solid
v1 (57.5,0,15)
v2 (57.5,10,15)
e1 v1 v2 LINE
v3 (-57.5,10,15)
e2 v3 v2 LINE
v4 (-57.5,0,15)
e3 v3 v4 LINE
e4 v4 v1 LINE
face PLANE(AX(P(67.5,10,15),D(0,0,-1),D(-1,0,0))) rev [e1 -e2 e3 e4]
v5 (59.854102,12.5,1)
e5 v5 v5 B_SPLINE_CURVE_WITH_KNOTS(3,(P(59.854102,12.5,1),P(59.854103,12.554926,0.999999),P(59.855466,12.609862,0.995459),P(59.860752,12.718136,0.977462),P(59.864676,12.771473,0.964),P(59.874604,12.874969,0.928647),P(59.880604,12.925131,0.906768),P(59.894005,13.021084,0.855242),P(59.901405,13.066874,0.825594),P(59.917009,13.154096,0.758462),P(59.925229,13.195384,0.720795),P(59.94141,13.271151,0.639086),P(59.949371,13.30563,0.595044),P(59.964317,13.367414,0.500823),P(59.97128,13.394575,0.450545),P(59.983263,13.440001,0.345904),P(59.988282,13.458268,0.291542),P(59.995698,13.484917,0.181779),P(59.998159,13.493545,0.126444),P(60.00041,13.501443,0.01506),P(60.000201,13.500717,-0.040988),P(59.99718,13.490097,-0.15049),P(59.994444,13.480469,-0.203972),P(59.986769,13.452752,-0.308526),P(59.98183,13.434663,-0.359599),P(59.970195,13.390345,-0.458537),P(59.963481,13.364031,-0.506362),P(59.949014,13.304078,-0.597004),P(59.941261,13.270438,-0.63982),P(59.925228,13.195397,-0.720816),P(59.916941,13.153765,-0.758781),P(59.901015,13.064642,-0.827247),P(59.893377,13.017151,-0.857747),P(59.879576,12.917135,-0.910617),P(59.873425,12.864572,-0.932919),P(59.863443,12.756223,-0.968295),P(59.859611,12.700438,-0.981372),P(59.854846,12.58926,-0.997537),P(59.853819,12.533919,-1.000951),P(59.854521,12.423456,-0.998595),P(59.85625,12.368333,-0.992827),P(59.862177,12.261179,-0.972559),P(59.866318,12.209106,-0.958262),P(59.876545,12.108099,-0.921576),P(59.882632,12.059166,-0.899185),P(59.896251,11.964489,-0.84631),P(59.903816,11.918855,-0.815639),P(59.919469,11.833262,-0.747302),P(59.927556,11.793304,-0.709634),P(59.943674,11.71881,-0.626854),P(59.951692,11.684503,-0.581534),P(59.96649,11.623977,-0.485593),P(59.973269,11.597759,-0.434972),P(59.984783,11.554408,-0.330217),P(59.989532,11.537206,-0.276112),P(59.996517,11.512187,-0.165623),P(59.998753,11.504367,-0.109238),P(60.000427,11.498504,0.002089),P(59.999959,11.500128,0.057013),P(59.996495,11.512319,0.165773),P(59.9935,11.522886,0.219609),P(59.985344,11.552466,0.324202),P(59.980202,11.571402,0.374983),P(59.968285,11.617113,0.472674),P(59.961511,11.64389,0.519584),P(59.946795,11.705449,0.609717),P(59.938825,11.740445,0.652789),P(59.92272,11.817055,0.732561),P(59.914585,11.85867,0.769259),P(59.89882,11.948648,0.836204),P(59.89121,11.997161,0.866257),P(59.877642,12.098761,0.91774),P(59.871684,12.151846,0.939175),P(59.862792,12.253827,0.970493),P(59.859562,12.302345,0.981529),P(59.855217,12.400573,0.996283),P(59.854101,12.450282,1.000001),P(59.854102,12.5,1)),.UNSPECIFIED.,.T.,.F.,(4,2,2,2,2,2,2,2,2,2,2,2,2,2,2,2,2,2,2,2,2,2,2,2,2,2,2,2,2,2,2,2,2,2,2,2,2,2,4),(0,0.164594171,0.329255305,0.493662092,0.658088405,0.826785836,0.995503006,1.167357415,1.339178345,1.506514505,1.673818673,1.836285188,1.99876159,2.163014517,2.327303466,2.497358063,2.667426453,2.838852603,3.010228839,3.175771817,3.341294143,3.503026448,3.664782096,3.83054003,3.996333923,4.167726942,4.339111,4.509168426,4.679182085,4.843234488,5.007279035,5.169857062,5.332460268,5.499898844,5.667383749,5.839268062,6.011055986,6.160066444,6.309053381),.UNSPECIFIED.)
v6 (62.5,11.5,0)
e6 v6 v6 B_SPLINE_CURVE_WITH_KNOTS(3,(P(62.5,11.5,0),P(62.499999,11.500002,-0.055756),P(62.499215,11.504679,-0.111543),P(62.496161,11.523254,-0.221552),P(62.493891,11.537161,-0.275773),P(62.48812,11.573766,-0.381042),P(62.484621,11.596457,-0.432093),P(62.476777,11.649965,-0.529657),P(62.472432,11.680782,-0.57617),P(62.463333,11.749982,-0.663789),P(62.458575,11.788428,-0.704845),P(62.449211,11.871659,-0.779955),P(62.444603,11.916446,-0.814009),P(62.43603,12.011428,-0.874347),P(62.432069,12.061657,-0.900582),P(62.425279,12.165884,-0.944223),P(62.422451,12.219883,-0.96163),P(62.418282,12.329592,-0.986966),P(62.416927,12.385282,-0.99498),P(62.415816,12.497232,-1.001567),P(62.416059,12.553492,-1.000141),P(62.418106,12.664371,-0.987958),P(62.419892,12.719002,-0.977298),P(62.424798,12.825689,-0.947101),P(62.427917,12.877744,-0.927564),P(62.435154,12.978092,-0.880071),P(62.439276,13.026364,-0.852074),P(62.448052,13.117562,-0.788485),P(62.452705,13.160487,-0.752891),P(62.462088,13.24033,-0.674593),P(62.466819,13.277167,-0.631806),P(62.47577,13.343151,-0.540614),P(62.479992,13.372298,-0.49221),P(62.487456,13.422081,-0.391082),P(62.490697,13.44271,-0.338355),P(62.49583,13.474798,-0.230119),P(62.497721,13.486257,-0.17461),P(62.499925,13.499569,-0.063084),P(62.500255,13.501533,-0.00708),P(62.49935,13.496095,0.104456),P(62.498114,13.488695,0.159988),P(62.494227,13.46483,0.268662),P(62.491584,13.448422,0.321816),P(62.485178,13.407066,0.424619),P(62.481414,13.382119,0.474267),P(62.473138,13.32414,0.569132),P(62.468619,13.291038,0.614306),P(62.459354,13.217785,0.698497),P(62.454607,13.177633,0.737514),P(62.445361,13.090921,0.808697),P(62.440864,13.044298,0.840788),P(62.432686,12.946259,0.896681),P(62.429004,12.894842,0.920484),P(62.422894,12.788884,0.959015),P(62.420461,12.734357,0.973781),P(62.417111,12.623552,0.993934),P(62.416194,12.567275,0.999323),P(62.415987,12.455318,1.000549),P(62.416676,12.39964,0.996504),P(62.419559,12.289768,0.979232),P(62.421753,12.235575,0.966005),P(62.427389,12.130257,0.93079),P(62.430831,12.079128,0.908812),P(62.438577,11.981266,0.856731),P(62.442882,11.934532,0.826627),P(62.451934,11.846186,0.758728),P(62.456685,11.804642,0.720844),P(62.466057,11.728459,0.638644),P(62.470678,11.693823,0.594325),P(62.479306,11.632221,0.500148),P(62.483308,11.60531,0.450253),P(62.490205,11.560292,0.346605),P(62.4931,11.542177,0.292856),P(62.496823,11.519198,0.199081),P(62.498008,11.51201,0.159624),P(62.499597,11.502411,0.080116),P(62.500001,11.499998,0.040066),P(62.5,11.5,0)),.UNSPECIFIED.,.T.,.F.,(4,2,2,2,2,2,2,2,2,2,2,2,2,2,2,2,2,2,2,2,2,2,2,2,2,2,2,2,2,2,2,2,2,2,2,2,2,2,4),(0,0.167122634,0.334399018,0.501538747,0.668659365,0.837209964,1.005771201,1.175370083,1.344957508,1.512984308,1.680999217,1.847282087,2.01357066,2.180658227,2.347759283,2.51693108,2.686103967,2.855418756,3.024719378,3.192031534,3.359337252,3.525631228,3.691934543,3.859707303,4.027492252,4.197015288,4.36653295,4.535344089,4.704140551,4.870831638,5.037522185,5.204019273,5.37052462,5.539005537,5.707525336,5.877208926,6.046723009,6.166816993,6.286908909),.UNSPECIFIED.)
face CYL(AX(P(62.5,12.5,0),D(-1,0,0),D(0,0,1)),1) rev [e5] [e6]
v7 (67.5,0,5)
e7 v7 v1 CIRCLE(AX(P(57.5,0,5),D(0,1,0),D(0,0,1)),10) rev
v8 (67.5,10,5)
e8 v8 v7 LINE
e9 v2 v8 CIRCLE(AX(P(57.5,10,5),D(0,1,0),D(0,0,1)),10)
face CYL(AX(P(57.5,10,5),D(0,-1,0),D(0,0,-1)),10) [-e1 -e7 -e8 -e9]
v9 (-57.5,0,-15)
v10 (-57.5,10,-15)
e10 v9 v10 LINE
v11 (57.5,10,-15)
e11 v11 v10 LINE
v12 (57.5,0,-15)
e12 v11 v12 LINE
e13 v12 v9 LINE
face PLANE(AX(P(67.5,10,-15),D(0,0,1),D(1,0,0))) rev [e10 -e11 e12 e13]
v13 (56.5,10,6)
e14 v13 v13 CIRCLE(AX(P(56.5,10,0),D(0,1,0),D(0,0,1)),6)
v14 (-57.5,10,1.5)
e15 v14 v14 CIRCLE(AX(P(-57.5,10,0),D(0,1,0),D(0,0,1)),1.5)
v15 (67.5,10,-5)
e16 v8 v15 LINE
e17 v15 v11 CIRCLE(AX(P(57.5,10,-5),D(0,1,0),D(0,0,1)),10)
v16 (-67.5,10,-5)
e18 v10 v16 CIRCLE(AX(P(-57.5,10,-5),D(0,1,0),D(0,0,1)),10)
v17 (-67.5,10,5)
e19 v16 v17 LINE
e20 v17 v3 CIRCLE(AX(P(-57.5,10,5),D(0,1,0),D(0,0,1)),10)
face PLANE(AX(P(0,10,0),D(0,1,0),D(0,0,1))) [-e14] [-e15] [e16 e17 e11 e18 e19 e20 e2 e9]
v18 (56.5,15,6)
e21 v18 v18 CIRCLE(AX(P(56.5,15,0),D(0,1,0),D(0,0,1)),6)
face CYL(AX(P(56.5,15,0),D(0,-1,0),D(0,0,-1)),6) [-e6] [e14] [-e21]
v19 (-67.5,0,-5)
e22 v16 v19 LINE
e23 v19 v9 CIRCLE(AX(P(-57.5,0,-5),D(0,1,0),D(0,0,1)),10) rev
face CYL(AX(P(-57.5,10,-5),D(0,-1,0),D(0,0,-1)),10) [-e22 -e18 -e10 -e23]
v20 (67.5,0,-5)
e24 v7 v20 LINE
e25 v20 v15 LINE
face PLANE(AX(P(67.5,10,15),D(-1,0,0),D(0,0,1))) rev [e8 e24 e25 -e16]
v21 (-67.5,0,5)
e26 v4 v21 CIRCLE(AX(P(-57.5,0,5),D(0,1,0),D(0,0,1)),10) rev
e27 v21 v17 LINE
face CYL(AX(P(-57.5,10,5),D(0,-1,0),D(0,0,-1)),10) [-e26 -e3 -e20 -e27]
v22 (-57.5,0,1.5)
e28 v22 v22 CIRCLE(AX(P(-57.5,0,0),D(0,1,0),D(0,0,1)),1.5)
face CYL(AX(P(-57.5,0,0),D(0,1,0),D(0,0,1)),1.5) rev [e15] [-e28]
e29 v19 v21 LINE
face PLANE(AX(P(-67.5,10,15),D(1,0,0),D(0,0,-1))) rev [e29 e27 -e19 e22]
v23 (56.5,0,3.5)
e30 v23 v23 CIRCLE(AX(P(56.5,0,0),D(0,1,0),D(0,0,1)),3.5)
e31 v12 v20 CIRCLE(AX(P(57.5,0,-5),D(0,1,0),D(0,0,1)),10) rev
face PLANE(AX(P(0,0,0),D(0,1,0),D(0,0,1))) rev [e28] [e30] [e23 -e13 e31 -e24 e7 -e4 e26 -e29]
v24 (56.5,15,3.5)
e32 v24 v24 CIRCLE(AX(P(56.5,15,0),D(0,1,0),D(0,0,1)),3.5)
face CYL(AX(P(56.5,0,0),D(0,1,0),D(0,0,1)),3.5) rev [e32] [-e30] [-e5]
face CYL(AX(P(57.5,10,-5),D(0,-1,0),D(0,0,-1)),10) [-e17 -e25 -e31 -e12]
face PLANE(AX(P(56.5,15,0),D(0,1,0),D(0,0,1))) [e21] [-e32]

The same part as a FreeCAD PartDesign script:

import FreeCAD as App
import Part
import Sketcher
Q = App.Units.Quantity


def edges_at(feature, points):
    """Names of the edges that pass closest to the given points."""
    edges = feature.Shape.Edges
    near = lambda p: min(range(len(edges)), key=lambda i: edges[i].distToShape(Part.Vertex(*p))[0])
    return sorted({f"Edge{near(p) + 1}" for p in points})

doc = App.newDocument("Part")
body = doc.addObject("PartDesign::Body", "Body")

# Sketch on XZ plane
sketch1 = body.newObject("Sketcher::SketchObject", "Sketch")
sketch1.AttachmentSupport = (doc.getObject("XZ_Plane"), [""])
sketch1.MapMode = "FlatFace"
sketch1.addGeometry(Part.LineSegment(App.Vector(-67.5, -15, 0), App.Vector(-67.5, 15, 0)), False)
sketch1.addGeometry(Part.LineSegment(App.Vector(-67.5, 15, 0), App.Vector(67.5, 15, 0)), False)
sketch1.addGeometry(Part.LineSegment(App.Vector(67.5, 15, 0), App.Vector(67.5, -15, 0)), False)
sketch1.addGeometry(Part.LineSegment(App.Vector(67.5, -15, 0), App.Vector(-67.5, -15, 0)), False)
sketch1.addConstraint(Sketcher.Constraint("Coincident", 0, 2, 1, 1))
sketch1.addConstraint(Sketcher.Constraint("Coincident", 1, 2, 2, 1))
sketch1.addConstraint(Sketcher.Constraint("Coincident", 2, 2, 3, 1))
sketch1.addConstraint(Sketcher.Constraint("Coincident", 3, 2, 0, 1))
sketch1.addConstraint(Sketcher.Constraint("Vertical", 0))
sketch1.addConstraint(Sketcher.Constraint("Horizontal", 1))
sketch1.addConstraint(Sketcher.Constraint("Vertical", 2))
sketch1.addConstraint(Sketcher.Constraint("Horizontal", 3))
sketch1.addConstraint(Sketcher.Constraint("Symmetric", 0, 2, 2, 2, -1, 1))
sketch1.addConstraint(Sketcher.Constraint("DistanceX", 1, 1, 1, 2, Q("135 mm")))
sketch1.addConstraint(Sketcher.Constraint("DistanceY", 0, 1, 0, 2, Q("30 mm")))
pad1 = body.newObject("PartDesign::Pad", "Pad")
pad1.Profile = sketch1
pad1.Length = 10
pad1.Reversed = True
doc.recompute()

fillet = body.newObject("PartDesign::Fillet", "Fillet")
fillet.Base = (pad1, edges_at(pad1, [
    (-67.5, 5, -15),
    (67.5, 5, -15),
    (67.5, 5, 15),
    (-67.5, 5, 15),
]))
fillet.Radius = 10

# Sketch on XZ plane
sketch2 = body.newObject("Sketcher::SketchObject", "Sketch001")
sketch2.AttachmentSupport = (doc.getObject("XZ_Plane"), [""])
sketch2.MapMode = "FlatFace"
sketch2.AttachmentOffset = App.Placement(App.Vector(0, 0, -10), App.Rotation())
sketch2.addGeometry(Part.Circle(App.Vector(-57.5, 0, 0), App.Vector(0, 0, 1), 1.5), False)
sketch2.addGeometry(Part.Circle(App.Vector(56.5, 0, 0), App.Vector(0, 0, 1), 3.5), False)
sketch2.addConstraint(Sketcher.Constraint("PointOnObject", 0, 3, -1))
sketch2.addConstraint(Sketcher.Constraint("PointOnObject", 1, 3, -1))
sketch2.addConstraint(Sketcher.Constraint("Diameter", 0, Q("3 mm")))
sketch2.addConstraint(Sketcher.Constraint("Diameter", 1, Q("7 mm")))
sketch2.addConstraint(Sketcher.Constraint("DistanceX", 0, 3, 1, 3, Q("114 mm")))
sketch2.addConstraint(Sketcher.Constraint("DistanceX", 0, 3, -1, 1, Q("57.5 mm")))
pocket1 = body.newObject("PartDesign::Pocket", "Pocket")
pocket1.Profile = sketch2
pocket1.Length = 10
pocket1.Reversed = True

# Sketch on XZ plane
sketch3 = body.newObject("Sketcher::SketchObject", "Sketch002")
sketch3.AttachmentSupport = (doc.getObject("XZ_Plane"), [""])
sketch3.MapMode = "FlatFace"
sketch3.AttachmentOffset = App.Placement(App.Vector(0, 0, -15), App.Rotation())
sketch3.addGeometry(Part.Circle(App.Vector(56.5, 0, 0), App.Vector(0, 0, 1), 6), False)
sketch3.addGeometry(Part.Circle(App.Vector(56.5, 0, 0), App.Vector(0, 0, 1), 3.5), False)
sketch3.addConstraint(Sketcher.Constraint("Coincident", 1, 3, 0, 3))
sketch3.addConstraint(Sketcher.Constraint("PointOnObject", 0, 3, -1))
sketch3.addConstraint(Sketcher.Constraint("Diameter", 0, Q("12 mm")))
sketch3.addConstraint(Sketcher.Constraint("Diameter", 1, Q("7 mm")))
sketch3.addConstraint(Sketcher.Constraint("DistanceX", -1, 1, 0, 3, Q("56.5 mm")))
pad2 = body.newObject("PartDesign::Pad", "Pad001")
pad2.Profile = sketch3
pad2.Length = 5

# Sketch on YZ plane
sketch4 = body.newObject("Sketcher::SketchObject", "Sketch003")
sketch4.AttachmentSupport = (doc.getObject("YZ_Plane"), [""])
sketch4.MapMode = "FlatFace"
sketch4.AttachmentOffset = App.Placement(App.Vector(0, 0, 56.5), App.Rotation())
sketch4.addGeometry(Part.Circle(App.Vector(12.5, 0, 0), App.Vector(0, 0, 1), 1), False)
sketch4.addConstraint(Sketcher.Constraint("PointOnObject", 0, 3, -1))
sketch4.addConstraint(Sketcher.Constraint("Diameter", 0, Q("2 mm")))
sketch4.addConstraint(Sketcher.Constraint("DistanceX", -1, 1, 0, 3, Q("12.5 mm")))
pocket2 = body.newObject("PartDesign::Pocket", "Pocket001")
pocket2.Profile = sketch4
pocket2.Length = 6
pocket2.Reversed = True

doc.recompute()
